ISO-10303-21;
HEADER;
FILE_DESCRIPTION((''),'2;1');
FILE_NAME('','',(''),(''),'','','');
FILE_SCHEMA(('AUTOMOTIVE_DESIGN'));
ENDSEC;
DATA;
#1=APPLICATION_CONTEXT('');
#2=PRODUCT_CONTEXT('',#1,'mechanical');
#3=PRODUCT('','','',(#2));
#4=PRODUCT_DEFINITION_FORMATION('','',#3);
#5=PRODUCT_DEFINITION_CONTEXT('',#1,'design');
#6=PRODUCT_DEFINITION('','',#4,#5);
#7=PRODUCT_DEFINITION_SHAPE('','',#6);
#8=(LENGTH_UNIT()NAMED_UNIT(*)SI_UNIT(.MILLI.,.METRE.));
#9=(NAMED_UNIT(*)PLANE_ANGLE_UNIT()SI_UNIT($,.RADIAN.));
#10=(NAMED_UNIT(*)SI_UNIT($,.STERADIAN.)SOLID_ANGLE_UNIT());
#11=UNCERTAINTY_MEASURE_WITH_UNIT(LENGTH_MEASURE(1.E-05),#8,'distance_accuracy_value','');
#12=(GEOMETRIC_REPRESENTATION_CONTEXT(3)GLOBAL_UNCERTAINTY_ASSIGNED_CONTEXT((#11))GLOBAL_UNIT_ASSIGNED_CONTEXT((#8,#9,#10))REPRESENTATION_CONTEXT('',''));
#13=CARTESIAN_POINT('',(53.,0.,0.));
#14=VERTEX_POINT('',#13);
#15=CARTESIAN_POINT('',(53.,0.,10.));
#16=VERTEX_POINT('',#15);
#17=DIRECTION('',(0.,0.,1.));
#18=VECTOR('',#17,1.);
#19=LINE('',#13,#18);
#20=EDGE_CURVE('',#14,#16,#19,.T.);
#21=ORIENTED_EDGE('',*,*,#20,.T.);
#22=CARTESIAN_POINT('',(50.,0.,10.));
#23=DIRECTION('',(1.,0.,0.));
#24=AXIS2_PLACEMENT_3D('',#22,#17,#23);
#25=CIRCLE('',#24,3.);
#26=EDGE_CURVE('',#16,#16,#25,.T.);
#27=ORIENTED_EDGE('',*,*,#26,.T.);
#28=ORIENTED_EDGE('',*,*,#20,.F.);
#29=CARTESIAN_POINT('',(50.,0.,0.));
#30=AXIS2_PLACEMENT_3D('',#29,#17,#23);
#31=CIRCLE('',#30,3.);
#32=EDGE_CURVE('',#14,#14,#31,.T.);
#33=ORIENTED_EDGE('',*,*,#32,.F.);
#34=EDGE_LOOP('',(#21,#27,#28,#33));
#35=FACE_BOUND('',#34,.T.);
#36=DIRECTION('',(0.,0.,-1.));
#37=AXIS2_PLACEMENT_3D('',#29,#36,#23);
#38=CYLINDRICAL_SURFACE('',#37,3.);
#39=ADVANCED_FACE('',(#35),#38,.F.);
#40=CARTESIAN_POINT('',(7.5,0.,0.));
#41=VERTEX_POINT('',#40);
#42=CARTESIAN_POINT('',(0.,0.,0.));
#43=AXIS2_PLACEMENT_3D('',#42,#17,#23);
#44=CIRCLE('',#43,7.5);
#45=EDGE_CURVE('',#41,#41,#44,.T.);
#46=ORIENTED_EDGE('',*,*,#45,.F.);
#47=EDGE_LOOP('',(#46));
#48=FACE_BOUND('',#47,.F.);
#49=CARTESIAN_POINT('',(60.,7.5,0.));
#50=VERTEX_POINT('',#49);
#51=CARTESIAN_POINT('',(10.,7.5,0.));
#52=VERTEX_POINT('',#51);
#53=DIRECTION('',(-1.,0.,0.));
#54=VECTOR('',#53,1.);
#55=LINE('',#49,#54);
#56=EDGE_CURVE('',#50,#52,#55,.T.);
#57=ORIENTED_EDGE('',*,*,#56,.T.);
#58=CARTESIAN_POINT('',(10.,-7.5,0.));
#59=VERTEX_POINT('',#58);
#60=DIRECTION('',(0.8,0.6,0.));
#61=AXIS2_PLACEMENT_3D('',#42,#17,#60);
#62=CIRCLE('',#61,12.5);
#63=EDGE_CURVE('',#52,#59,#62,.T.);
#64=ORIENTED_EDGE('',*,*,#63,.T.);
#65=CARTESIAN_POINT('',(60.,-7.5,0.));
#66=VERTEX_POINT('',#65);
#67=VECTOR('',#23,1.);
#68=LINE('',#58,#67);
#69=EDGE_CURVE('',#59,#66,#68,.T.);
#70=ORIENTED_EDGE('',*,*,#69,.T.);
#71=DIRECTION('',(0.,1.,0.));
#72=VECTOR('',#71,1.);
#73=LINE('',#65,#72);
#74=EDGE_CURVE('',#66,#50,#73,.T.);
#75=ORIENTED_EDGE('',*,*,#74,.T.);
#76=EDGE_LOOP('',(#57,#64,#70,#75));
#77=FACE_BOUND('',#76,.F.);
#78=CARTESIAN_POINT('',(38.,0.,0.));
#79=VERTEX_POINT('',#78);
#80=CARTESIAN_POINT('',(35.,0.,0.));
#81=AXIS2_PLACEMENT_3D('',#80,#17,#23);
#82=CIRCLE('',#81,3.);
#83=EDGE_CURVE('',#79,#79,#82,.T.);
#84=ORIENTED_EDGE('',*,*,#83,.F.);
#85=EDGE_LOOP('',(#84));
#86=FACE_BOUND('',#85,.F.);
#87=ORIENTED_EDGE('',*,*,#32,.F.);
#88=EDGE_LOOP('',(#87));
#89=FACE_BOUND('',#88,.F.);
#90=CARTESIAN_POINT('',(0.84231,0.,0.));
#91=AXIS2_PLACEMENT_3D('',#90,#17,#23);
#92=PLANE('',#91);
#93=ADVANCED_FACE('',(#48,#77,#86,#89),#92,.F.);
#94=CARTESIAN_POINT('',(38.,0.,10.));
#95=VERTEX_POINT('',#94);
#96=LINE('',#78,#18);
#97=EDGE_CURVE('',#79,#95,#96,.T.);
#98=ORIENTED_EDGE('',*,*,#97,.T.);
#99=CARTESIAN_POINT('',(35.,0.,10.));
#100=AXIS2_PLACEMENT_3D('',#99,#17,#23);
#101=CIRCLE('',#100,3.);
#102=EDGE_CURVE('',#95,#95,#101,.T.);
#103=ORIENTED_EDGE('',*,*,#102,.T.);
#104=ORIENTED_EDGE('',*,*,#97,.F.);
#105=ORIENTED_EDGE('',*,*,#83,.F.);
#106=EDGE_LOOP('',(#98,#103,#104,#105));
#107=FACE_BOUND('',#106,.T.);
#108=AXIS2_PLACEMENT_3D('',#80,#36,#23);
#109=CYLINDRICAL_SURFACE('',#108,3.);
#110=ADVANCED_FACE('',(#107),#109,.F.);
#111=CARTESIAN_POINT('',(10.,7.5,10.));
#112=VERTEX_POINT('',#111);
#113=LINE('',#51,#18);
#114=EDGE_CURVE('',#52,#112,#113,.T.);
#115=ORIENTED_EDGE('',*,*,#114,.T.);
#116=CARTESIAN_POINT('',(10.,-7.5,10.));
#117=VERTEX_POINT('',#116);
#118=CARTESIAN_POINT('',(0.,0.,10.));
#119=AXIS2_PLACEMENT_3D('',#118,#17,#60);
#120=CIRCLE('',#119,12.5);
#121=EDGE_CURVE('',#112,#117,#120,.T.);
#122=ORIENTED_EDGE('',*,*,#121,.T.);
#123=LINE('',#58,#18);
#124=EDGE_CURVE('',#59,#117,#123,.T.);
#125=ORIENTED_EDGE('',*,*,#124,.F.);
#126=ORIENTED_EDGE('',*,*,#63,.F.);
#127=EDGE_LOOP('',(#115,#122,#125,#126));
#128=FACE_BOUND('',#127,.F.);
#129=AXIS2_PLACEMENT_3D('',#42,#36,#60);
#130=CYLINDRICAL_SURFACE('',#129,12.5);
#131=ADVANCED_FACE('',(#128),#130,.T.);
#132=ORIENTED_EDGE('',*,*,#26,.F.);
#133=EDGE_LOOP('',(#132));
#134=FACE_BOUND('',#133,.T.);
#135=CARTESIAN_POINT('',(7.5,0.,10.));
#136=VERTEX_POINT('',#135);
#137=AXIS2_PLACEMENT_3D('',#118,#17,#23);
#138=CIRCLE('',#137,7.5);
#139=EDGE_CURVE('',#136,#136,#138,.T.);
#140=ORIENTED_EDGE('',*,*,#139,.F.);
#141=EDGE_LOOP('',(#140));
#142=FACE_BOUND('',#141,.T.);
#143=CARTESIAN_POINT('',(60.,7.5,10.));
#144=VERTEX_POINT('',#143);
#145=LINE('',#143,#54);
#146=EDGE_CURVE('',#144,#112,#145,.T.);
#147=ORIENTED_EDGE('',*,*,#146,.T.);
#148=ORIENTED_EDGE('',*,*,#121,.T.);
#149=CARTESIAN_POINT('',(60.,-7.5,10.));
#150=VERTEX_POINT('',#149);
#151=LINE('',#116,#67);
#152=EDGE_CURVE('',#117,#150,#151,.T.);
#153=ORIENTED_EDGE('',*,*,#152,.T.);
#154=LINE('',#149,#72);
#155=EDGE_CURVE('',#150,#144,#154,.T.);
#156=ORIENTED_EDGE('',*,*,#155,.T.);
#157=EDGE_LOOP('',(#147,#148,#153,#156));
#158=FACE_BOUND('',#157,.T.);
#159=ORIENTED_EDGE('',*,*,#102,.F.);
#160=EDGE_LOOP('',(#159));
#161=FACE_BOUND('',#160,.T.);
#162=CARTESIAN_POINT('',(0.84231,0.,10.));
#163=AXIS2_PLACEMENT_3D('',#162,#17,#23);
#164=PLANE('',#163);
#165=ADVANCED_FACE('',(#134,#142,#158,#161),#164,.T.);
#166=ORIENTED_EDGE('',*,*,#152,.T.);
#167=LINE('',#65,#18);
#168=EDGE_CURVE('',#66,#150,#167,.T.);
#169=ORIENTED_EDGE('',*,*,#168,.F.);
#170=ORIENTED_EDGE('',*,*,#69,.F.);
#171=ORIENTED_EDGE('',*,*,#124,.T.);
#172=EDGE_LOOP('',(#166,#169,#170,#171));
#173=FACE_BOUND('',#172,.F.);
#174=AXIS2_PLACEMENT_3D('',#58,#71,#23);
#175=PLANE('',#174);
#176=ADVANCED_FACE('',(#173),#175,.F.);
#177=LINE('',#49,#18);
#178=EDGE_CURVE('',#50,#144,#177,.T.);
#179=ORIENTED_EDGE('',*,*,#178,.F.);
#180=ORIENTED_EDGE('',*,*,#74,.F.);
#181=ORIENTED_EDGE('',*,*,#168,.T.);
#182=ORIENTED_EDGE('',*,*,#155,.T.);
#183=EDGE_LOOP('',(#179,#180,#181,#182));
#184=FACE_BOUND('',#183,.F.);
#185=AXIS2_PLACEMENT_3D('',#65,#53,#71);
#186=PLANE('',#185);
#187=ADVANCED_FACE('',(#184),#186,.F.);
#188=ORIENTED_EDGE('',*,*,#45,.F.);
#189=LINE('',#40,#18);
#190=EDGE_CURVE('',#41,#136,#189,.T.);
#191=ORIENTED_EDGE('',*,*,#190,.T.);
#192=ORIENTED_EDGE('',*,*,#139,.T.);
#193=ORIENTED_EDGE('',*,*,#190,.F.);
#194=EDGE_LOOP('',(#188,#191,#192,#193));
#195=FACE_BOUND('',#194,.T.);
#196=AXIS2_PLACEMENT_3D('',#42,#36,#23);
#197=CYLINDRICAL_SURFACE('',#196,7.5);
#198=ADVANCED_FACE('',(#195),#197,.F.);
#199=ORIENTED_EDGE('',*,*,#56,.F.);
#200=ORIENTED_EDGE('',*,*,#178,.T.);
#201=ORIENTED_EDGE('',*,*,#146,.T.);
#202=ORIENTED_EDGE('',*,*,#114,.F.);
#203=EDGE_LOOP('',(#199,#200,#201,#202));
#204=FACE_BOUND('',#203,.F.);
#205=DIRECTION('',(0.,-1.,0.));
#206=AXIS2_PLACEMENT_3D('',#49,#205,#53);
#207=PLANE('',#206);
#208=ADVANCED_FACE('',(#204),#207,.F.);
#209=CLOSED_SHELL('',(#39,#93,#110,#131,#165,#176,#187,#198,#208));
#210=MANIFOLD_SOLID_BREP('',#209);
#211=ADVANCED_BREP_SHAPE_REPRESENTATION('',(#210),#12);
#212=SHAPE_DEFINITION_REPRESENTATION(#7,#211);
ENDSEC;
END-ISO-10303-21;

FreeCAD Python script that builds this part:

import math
import FreeCAD as App
import Part
import Sketcher

V = App.Vector

doc = App.newDocument("Part")
body = doc.addObject("PartDesign::Body", "Body")

sketch1 = doc.addObject("Sketcher::SketchObject", "Sketch")
body.addObject(sketch1)
sketch1.AttachmentSupport = (doc.XY_Plane, [""])
sketch1.MapMode = "FlatFace"
sketch1.addGeometry(Part.ArcOfCircle(Part.Circle(V(0, 0, 0), V(0, 0, 1), 12.5), math.radians(37), math.radians(323)), False)
sketch1.addGeometry(Part.LineSegment(V(10, -7.5, 0), V(60, -7.5, 0)), False)
sketch1.addGeometry(Part.LineSegment(V(60, -7.5, 0), V(60, 7.5, 0)), False)
sketch1.addGeometry(Part.LineSegment(V(60, 7.5, 0), V(10, 7.5, 0)), False)
sketch1.addGeometry(Part.Circle(V(0, 0, 0), V(0, 0, 1), 7.5), False)
sketch1.addGeometry(Part.Circle(V(35, 0, 0), V(0, 0, 1), 3), False)
sketch1.addGeometry(Part.Circle(V(50, 0, 0), V(0, 0, 1), 3), False)
sketch1.addConstraint(Sketcher.Constraint("Coincident", 0, 2, 1, 1))
sketch1.addConstraint(Sketcher.Constraint("Coincident", 1, 2, 2, 1))
sketch1.addConstraint(Sketcher.Constraint("Coincident", 2, 2, 3, 1))
sketch1.addConstraint(Sketcher.Constraint("Coincident", 3, 2, 0, 1))
sketch1.addConstraint(Sketcher.Constraint("Horizontal", 1))
sketch1.addConstraint(Sketcher.Constraint("Vertical", 2))
sketch1.addConstraint(Sketcher.Constraint("Horizontal", 3))
sketch1.addConstraint(Sketcher.Constraint("Coincident", 0, 3, -1, 1))
sketch1.addConstraint(Sketcher.Constraint("Coincident", 4, 3, -1, 1))
sketch1.addConstraint(Sketcher.Constraint("Equal", 5, 6))
sketch1.addConstraint(Sketcher.Constraint("PointOnObject", 5, 3, -1))
sketch1.addConstraint(Sketcher.Constraint("PointOnObject", 6, 3, -1))
sketch1.addConstraint(Sketcher.Constraint("Vertical", 0, 2, 3, 2))
sketch1.addConstraint(Sketcher.Constraint("Diameter", 4, 15.0))
sketch1.addConstraint(Sketcher.Constraint("Diameter", 5, 6.0))
sketch1.addConstraint(Sketcher.Constraint("Radius", 0, 12.5))
sketch1.addConstraint(Sketcher.Constraint("DistanceX", 1, 1, 1, 2, 50.0))
sketch1.addConstraint(Sketcher.Constraint("DistanceY", 2, 1, 2, 2, 15.0))
sketch1.addConstraint(Sketcher.Constraint("DistanceX", -1, 1, 5, 3, 35.0))
sketch1.addConstraint(Sketcher.Constraint("DistanceX", -1, 1, 6, 3, 50.0))
pad1 = doc.addObject("PartDesign::Pad", "Pad")
body.addObject(pad1)
pad1.Profile = sketch1
pad1.Length = 10

doc.recompute()
